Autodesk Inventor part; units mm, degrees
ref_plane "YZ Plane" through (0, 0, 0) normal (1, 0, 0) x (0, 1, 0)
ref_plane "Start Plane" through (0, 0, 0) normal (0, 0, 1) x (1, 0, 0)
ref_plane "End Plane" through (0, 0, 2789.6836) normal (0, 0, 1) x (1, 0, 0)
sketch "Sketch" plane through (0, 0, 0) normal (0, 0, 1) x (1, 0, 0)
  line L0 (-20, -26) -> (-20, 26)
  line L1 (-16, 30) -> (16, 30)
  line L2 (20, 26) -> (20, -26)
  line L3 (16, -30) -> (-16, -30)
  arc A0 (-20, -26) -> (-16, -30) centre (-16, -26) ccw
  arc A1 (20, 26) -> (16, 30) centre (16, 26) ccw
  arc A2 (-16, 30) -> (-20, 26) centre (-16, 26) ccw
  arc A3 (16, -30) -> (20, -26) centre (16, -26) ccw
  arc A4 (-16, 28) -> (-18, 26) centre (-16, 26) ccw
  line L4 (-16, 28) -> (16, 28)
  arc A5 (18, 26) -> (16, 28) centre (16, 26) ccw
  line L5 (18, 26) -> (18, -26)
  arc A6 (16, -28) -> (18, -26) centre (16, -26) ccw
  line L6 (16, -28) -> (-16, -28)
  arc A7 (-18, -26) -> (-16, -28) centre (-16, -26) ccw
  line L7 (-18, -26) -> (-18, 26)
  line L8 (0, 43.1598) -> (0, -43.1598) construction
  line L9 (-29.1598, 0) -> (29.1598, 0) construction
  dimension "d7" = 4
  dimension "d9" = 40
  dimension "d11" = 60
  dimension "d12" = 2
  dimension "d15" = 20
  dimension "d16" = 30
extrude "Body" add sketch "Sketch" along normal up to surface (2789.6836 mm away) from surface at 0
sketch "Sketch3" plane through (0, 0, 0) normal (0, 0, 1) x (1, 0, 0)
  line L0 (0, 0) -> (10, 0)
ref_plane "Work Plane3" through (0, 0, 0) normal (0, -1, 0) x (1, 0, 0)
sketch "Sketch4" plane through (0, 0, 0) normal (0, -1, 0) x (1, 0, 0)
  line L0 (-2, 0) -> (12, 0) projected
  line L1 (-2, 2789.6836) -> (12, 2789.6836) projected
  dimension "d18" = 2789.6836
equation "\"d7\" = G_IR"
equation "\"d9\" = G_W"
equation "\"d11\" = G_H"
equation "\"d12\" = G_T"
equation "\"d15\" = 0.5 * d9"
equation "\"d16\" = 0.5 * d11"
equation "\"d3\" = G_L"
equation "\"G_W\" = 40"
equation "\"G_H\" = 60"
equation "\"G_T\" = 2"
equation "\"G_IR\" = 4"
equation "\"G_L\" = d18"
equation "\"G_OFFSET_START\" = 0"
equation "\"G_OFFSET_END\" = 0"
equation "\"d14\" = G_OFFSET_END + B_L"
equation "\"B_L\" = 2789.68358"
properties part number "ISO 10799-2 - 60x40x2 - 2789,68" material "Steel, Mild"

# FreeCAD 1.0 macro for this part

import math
import FreeCAD as App
import Part
import Sketcher
from FreeCAD import Vector
Q = App.Units.Quantity

doc = App.newDocument("Part")
body = doc.addObject("PartDesign::Body", "Body")

# Sketch on XY plane
sketch1 = body.newObject("Sketcher::SketchObject", "Sketch")
sketch1.AttachmentSupport = (doc.getObject("XY_Plane"), [""])
sketch1.MapMode = "FlatFace"
sketch1.addGeometry([
    Part.LineSegment(Vector(-20, 26, 0), Vector(-20, -26, 0)),  # 0
    Part.ArcOfCircle(Part.Circle(Vector(-16, -26, 0), Vector(0, 0, 1), 4), math.radians(180), math.radians(270)),  # 1
    Part.LineSegment(Vector(-16, -30, 0), Vector(16, -30, 0)),  # 2
    Part.ArcOfCircle(Part.Circle(Vector(16, -26, 0), Vector(0, 0, 1), 4), math.radians(-90), math.radians(0)),  # 3
    Part.LineSegment(Vector(20, -26, 0), Vector(20, 26, 0)),  # 4
    Part.ArcOfCircle(Part.Circle(Vector(16, 26, 0), Vector(0, 0, 1), 4), math.radians(0), math.radians(90)),  # 5
    Part.LineSegment(Vector(16, 30, 0), Vector(-16, 30, 0)),  # 6
    Part.ArcOfCircle(Part.Circle(Vector(-16, 26, 0), Vector(0, 0, 1), 4), math.radians(90), math.radians(180)),  # 7
    Part.ArcOfCircle(Part.Circle(Vector(-16, 26, 0), Vector(0, 0, 1), 2), math.radians(90), math.radians(180)),  # 8
    Part.LineSegment(Vector(-16, 28, 0), Vector(16, 28, 0)),  # 9
    Part.ArcOfCircle(Part.Circle(Vector(16, 26, 0), Vector(0, 0, 1), 2), math.radians(0), math.radians(90)),  # 10
    Part.LineSegment(Vector(18, 26, 0), Vector(18, -26, 0)),  # 11
    Part.ArcOfCircle(Part.Circle(Vector(16, -26, 0), Vector(0, 0, 1), 2), math.radians(-90), math.radians(0)),  # 12
    Part.LineSegment(Vector(16, -28, 0), Vector(-16, -28, 0)),  # 13
    Part.ArcOfCircle(Part.Circle(Vector(-16, -26, 0), Vector(0, 0, 1), 2), math.radians(180), math.radians(270)),  # 14
    Part.LineSegment(Vector(-18, -26, 0), Vector(-18, 26, 0)),  # 15
], False)
sketch1.addConstraint([
    Sketcher.Constraint("Tangent", 0, 2, 1, 1),
    Sketcher.Constraint("Tangent", 1, 2, 2, 1),
    Sketcher.Constraint("Tangent", 2, 2, 3, 1),
    Sketcher.Constraint("Tangent", 3, 2, 4, 1),
    Sketcher.Constraint("Tangent", 4, 2, 5, 1),
    Sketcher.Constraint("Tangent", 5, 2, 6, 1),
    Sketcher.Constraint("Tangent", 6, 2, 7, 1),
    Sketcher.Constraint("Tangent", 7, 2, 0, 1),
    Sketcher.Constraint("Tangent", 8, 1, 9, 1),
    Sketcher.Constraint("Tangent", 9, 2, 10, 2),
    Sketcher.Constraint("Tangent", 10, 1, 11, 1),
    Sketcher.Constraint("Tangent", 11, 2, 12, 2),
    Sketcher.Constraint("Tangent", 12, 1, 13, 1),
    Sketcher.Constraint("Tangent", 13, 2, 14, 2),
    Sketcher.Constraint("Tangent", 14, 1, 15, 1),
    Sketcher.Constraint("Tangent", 15, 2, 8, 2),
    Sketcher.Constraint("Vertical", 0),
    Sketcher.Constraint("Horizontal", 2),
    Sketcher.Constraint("Vertical", 4),
    Sketcher.Constraint("Horizontal", 6),
    Sketcher.Constraint("Horizontal", 9),
    Sketcher.Constraint("Vertical", 11),
    Sketcher.Constraint("Horizontal", 13),
    Sketcher.Constraint("Vertical", 15),
    Sketcher.Constraint("Coincident", 8, 3, 7, 3),
    Sketcher.Constraint("Coincident", 10, 3, 5, 3),
    Sketcher.Constraint("Coincident", 12, 3, 3, 3),
    Sketcher.Constraint("Equal", 1, 3),
    Sketcher.Constraint("Equal", 3, 5),
    Sketcher.Constraint("Equal", 5, 7),
    Sketcher.Constraint("Equal", 12, 14),
    Sketcher.Constraint("Symmetric", 1, 3, 5, 3, -1, 1),
    Sketcher.Constraint("Radius", 1, Q("4 mm")),
    Sketcher.Constraint("Radius", 8, Q("2 mm")),
    Sketcher.Constraint("DistanceX", 0, 2, -1, 1, Q("20 mm")),
    Sketcher.Constraint("DistanceY", 1, 2, -1, 1, Q("30 mm")),
])
pad1 = body.newObject("PartDesign::Pad", "Pad")
pad1.Profile = sketch1
pad1.Length = 2789.6836

doc.recompute()
